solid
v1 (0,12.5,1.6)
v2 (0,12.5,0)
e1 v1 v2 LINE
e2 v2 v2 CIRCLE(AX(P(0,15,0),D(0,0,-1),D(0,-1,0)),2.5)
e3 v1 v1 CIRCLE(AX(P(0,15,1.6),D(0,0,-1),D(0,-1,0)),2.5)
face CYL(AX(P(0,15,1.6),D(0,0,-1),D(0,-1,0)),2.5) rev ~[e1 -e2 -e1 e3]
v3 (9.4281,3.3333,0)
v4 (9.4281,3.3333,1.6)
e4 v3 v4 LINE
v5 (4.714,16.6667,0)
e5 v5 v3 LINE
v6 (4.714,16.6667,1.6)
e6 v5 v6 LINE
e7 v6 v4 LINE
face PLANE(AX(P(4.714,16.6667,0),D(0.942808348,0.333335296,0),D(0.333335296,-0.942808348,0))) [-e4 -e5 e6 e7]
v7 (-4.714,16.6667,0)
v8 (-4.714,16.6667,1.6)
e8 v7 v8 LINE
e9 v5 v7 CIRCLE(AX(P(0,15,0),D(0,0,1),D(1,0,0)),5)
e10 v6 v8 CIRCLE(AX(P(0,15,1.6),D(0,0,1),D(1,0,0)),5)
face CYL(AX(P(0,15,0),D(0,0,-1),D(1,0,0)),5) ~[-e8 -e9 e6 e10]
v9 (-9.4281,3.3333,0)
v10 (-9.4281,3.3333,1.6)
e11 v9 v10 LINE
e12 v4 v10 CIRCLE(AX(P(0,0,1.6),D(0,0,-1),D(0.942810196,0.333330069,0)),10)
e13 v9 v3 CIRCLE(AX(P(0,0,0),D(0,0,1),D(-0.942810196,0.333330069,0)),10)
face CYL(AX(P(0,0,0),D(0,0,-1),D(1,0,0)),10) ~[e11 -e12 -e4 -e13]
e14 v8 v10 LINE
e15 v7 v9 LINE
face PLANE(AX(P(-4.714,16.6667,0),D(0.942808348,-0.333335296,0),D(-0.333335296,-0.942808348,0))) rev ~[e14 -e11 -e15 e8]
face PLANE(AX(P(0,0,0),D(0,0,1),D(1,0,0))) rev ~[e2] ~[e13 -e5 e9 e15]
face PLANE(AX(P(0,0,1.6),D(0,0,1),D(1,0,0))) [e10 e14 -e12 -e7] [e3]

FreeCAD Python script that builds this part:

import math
import FreeCAD as App
import Part
import Sketcher
from FreeCAD import Vector

doc = App.newDocument("Part")
body = doc.addObject("PartDesign::Body", "Body")

# Sketch on XY plane
sketch1 = body.newObject("Sketcher::SketchObject", "Sketch")
sketch1.AttachmentSupport = (doc.getObject("XY_Plane"), [""])
sketch1.MapMode = "FlatFace"
sketch1.addGeometry(Part.ArcOfCircle(Part.Circle(Vector(0, 0, 0), Vector(0, 0, 1), 10), math.radians(161), math.radians(379)), False)
sketch1.addGeometry(Part.LineSegment(Vector(9, 3, 0), Vector(5, 17, 0)), False)
sketch1.addGeometry(Part.ArcOfCircle(Part.Circle(Vector(0, 15, 0), Vector(0, 0, 1), 5), math.radians(19), math.radians(161)), False)
sketch1.addGeometry(Part.LineSegment(Vector(-5, 17, 0), Vector(-9, 3, 0)), False)
sketch1.addConstraint(Sketcher.Constraint("Tangent", 0, 2, 1, 1))
sketch1.addConstraint(Sketcher.Constraint("Tangent", 1, 2, 2, 1))
sketch1.addConstraint(Sketcher.Constraint("Tangent", 2, 2, 3, 1))
sketch1.addConstraint(Sketcher.Constraint("Tangent", 3, 2, 0, 1))
sketch1.addConstraint(Sketcher.Constraint("Coincident", 0, 3, -1, 1))
sketch1.addConstraint(Sketcher.Constraint("PointOnObject", 2, 3, -2))
sketch1.addConstraint(Sketcher.Constraint("Radius", 0, 10.0))
sketch1.addConstraint(Sketcher.Constraint("Radius", 2, 5.0))
sketch1.addConstraint(Sketcher.Constraint("DistanceY", -1, 1, 2, 3, 15.0))
pad1 = body.newObject("PartDesign::Pad", "Pad")
pad1.Profile = sketch1
pad1.Length = 1.6

# Sketch on XY plane
sketch2 = body.newObject("Sketcher::SketchObject", "Sketch001")
sketch2.AttachmentSupport = (doc.getObject("XY_Plane"), [""])
sketch2.MapMode = "FlatFace"
sketch2.AttachmentOffset = App.Placement(Vector(0, 0, 1.6), App.Rotation())
sketch2.addGeometry(Part.Circle(Vector(0, 15, 0), Vector(0, 0, 1), 2.5), False)
sketch2.addConstraint(Sketcher.Constraint("PointOnObject", 0, 3, -2))
sketch2.addConstraint(Sketcher.Constraint("Diameter", 0, 5.0))
sketch2.addConstraint(Sketcher.Constraint("DistanceY", -1, 1, 0, 3, 15.0))
doc.recompute()
hole = body.newObject("PartDesign::Hole", "Hole")
hole.Profile = sketch2
hole.ThreadType = "None"
hole.Diameter = 5
hole.DepthType = "ThroughAll"

doc.recompute()
